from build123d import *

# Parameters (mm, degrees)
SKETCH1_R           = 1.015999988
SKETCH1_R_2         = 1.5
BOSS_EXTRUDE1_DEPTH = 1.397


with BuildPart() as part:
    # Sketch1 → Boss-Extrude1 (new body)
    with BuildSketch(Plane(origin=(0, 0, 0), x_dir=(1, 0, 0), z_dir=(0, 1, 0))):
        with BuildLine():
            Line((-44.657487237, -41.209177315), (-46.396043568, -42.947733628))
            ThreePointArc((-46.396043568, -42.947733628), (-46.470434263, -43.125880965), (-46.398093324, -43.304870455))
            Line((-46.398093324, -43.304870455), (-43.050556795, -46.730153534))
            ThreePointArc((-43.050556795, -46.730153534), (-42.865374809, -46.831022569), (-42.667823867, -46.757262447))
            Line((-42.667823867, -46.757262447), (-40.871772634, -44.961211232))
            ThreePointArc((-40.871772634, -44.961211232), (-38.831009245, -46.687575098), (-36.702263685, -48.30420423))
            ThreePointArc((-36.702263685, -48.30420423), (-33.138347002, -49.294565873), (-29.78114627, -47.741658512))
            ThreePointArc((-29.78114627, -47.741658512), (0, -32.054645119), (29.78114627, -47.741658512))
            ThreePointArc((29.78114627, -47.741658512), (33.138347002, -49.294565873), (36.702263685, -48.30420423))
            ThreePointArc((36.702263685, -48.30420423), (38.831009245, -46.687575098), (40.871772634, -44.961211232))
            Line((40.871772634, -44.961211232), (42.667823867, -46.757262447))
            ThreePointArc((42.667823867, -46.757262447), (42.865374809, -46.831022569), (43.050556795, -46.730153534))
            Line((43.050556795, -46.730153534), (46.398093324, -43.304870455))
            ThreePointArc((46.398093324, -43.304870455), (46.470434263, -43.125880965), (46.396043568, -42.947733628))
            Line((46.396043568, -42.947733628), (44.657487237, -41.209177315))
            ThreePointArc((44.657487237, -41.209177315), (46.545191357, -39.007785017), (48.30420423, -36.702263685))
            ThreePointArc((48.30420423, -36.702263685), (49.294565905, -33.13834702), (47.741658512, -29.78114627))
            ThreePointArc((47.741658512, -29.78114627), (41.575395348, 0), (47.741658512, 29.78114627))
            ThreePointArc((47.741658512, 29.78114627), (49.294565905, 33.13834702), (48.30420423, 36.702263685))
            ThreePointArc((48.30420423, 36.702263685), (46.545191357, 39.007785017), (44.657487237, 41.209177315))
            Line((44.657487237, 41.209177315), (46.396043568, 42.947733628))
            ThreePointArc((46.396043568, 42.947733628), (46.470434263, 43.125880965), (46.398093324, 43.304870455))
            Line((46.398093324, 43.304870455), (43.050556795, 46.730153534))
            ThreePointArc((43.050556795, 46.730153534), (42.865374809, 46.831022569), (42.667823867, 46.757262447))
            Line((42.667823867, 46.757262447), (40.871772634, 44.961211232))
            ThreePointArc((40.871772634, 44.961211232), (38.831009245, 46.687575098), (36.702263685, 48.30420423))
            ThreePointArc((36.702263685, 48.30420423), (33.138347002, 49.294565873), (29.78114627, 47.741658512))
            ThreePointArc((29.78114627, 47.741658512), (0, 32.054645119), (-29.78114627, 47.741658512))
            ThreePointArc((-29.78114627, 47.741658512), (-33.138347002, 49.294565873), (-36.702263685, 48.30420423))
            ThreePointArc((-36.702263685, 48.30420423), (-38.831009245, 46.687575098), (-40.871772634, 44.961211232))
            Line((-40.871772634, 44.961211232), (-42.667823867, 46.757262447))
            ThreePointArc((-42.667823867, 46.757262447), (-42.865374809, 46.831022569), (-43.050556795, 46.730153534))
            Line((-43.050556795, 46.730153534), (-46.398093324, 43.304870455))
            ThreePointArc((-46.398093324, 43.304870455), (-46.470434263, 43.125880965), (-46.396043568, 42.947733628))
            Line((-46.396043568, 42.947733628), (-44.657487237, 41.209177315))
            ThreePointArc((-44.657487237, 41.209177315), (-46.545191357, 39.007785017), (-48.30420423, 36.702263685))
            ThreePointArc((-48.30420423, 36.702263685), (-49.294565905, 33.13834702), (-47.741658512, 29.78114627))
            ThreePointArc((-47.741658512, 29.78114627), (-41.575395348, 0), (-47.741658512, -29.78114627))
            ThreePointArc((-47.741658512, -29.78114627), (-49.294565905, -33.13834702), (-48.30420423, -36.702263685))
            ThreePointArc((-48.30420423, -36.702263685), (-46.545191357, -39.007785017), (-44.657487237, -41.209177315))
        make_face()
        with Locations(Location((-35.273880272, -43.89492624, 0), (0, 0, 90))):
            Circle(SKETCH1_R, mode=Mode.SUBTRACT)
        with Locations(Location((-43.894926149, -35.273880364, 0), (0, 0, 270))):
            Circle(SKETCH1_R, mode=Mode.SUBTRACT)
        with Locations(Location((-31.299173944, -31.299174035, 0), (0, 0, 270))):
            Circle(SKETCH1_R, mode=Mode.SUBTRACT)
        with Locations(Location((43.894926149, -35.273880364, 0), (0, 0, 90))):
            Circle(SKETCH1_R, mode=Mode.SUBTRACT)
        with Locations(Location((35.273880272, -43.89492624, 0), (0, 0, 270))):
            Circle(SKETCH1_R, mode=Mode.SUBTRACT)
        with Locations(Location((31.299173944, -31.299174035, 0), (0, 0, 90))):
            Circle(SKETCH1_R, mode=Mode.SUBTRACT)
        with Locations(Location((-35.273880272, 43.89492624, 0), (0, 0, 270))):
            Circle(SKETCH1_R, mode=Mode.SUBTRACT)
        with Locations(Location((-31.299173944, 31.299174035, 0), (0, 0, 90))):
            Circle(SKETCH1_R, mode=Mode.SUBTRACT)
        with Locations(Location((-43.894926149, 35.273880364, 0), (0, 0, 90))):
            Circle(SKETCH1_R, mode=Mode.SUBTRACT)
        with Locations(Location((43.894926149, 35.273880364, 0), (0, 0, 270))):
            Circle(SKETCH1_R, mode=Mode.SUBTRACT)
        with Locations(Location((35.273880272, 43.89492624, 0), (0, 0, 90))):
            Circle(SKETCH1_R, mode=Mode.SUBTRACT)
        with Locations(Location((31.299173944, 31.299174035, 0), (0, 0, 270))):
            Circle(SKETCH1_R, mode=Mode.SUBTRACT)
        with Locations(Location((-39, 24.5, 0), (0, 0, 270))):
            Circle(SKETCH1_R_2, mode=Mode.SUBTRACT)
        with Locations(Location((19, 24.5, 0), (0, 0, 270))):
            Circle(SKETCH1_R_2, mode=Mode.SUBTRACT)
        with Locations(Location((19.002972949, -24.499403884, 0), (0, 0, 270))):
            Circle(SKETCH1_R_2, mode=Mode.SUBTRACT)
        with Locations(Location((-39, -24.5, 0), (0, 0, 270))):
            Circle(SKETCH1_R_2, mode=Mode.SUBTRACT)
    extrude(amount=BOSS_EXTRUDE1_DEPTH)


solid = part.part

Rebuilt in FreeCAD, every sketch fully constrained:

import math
import FreeCAD as App
import Part
import Sketcher
Q = App.Units.Quantity

doc = App.newDocument("Part")
body = doc.addObject("PartDesign::Body", "Body")

# Sketch on XZ plane
sketch1 = body.newObject("Sketcher::SketchObject", "Sketch")
sketch1.AttachmentSupport = (doc.getObject("XZ_Plane"), [""])
sketch1.MapMode = "FlatFace"
sketch1.addGeometry([
    Part.LineSegment(App.Vector(-44.66, 41.21, 0), App.Vector(-46.4, 42.95, 0)),  # 0
    Part.ArcOfCircle(Part.Circle(App.Vector(-46.22, 43.13, 0), App.Vector(0, 0, 1), 0.25), math.radians(136), math.radians(225)),  # 1
    Part.LineSegment(App.Vector(-46.4, 43.3, 0), App.Vector(-43.05, 46.73, 0)),  # 2
    Part.ArcOfCircle(Part.Circle(App.Vector(-42.85, 46.58, 0), App.Vector(0, 0, 1), 0.25), math.radians(45), math.radians(143)),  # 3
    Part.LineSegment(App.Vector(-42.67, 46.76, 0), App.Vector(-40.87, 44.96, 0)),  # 4
    Part.ArcOfCircle(Part.Circle(App.Vector(-7.05, 7.05, 0), App.Vector(0, 0, 1), 50.8), math.radians(125.71), math.radians(131.74)),  # 5
    Part.ArcOfCircle(Part.Circle(App.Vector(-33.57, 43.95, 0), App.Vector(0, 0, 1), 5.36), math.radians(45), math.radians(126)),  # 6
    Part.ArcOfCircle(Part.Circle(App.Vector(0, 68.17, 0), App.Vector(0, 0, 1), 36.11), math.radians(-146), math.radians(-34)),  # 7
    Part.ArcOfCircle(Part.Circle(App.Vector(33.57, 43.95, 0), App.Vector(0, 0, 1), 5.36), math.radians(54), math.radians(135)),  # 8
    Part.ArcOfCircle(Part.Circle(App.Vector(7.05, 7.05, 0), App.Vector(0, 0, 1), 50.8), math.radians(48.26), math.radians(54.29)),  # 9
    Part.LineSegment(App.Vector(40.87, 44.96, 0), App.Vector(42.67, 46.76, 0)),  # 10
    Part.ArcOfCircle(Part.Circle(App.Vector(42.85, 46.58, 0), App.Vector(0, 0, 1), 0.25), math.radians(37), math.radians(135)),  # 11
    Part.LineSegment(App.Vector(43.05, 46.73, 0), App.Vector(46.4, 43.3, 0)),  # 12
    Part.ArcOfCircle(Part.Circle(App.Vector(46.22, 43.13, 0), App.Vector(0, 0, 1), 0.25), math.radians(-45), math.radians(44)),  # 13
    Part.LineSegment(App.Vector(46.4, 42.95, 0), App.Vector(44.66, 41.21, 0)),  # 14
    Part.ArcOfCircle(Part.Circle(App.Vector(7.05, 7.05, 0), App.Vector(0, 0, 1), 50.8), math.radians(35.71), math.radians(42.25)),  # 15
    Part.ArcOfCircle(Part.Circle(App.Vector(43.95, 33.57, 0), App.Vector(0, 0, 1), 5.36), math.radians(-45), math.radians(36)),  # 16
    Part.ArcOfCircle(Part.Circle(App.Vector(116.58, 0, 0), App.Vector(0, 0, 1), 75), math.radians(157), math.radians(203)),  # 17
    Part.ArcOfCircle(Part.Circle(App.Vector(43.95, -33.57, 0), App.Vector(0, 0, 1), 5.36), math.radians(-36), math.radians(45)),  # 18
    Part.ArcOfCircle(Part.Circle(App.Vector(7.05, -7.05, 0), App.Vector(0, 0, 1), 50.8), math.radians(-42.25), math.radians(-35.71)),  # 19
    Part.LineSegment(App.Vector(44.66, -41.21, 0), App.Vector(46.4, -42.95, 0)),  # 20
    Part.ArcOfCircle(Part.Circle(App.Vector(46.22, -43.13, 0), App.Vector(0, 0, 1), 0.25), math.radians(-44), math.radians(45)),  # 21
    Part.LineSegment(App.Vector(46.4, -43.3, 0), App.Vector(43.05, -46.73, 0)),  # 22
    Part.ArcOfCircle(Part.Circle(App.Vector(42.85, -46.58, 0), App.Vector(0, 0, 1), 0.25), math.radians(-135), math.radians(-37)),  # 23
    Part.LineSegment(App.Vector(42.67, -46.76, 0), App.Vector(40.87, -44.96, 0)),  # 24
    Part.ArcOfCircle(Part.Circle(App.Vector(7.05, -7.05, 0), App.Vector(0, 0, 1), 50.8), math.radians(-54.29), math.radians(-48.26)),  # 25
    Part.ArcOfCircle(Part.Circle(App.Vector(33.57, -43.95, 0), App.Vector(0, 0, 1), 5.36), math.radians(-135), math.radians(-54)),  # 26
    Part.ArcOfCircle(Part.Circle(App.Vector(0, -68.17, 0), App.Vector(0, 0, 1), 36.11), math.radians(34), math.radians(146)),  # 27
    Part.ArcOfCircle(Part.Circle(App.Vector(-33.57, -43.95, 0), App.Vector(0, 0, 1), 5.36), math.radians(-126), math.radians(-45)),  # 28
    Part.ArcOfCircle(Part.Circle(App.Vector(-7.05, -7.05, 0), App.Vector(0, 0, 1), 50.8), math.radians(-131.74), math.radians(-125.71)),  # 29
    Part.LineSegment(App.Vector(-40.87, -44.96, 0), App.Vector(-42.67, -46.76, 0)),  # 30
    Part.ArcOfCircle(Part.Circle(App.Vector(-42.85, -46.58, 0), App.Vector(0, 0, 1), 0.25), math.radians(-143), math.radians(-45)),  # 31
    Part.LineSegment(App.Vector(-43.05, -46.73, 0), App.Vector(-46.4, -43.3, 0)),  # 32
    Part.ArcOfCircle(Part.Circle(App.Vector(-46.22, -43.13, 0), App.Vector(0, 0, 1), 0.25), math.radians(135), math.radians(224)),  # 33
    Part.LineSegment(App.Vector(-46.4, -42.95, 0), App.Vector(-44.66, -41.21, 0)),  # 34
    Part.ArcOfCircle(Part.Circle(App.Vector(-7.05, -7.05, 0), App.Vector(0, 0, 1), 50.8), math.radians(-144.29), math.radians(-137.75)),  # 35
    Part.ArcOfCircle(Part.Circle(App.Vector(-43.95, -33.57, 0), App.Vector(0, 0, 1), 5.36), math.radians(135), math.radians(216)),  # 36
    Part.ArcOfCircle(Part.Circle(App.Vector(-116.58, 0, 0), App.Vector(0, 0, 1), 75), math.radians(-23), math.radians(23)),  # 37
    Part.ArcOfCircle(Part.Circle(App.Vector(-43.95, 33.57, 0), App.Vector(0, 0, 1), 5.36), math.radians(144), math.radians(225)),  # 38
    Part.ArcOfCircle(Part.Circle(App.Vector(-7.05, 7.05, 0), App.Vector(0, 0, 1), 50.8), math.radians(137.75), math.radians(144.29)),  # 39
    Part.Circle(App.Vector(-35.27, 43.89, 0), App.Vector(0, 0, 1), 1.02),  # 40
    Part.Circle(App.Vector(-43.89, 35.27, 0), App.Vector(0, 0, 1), 1.02),  # 41
    Part.Circle(App.Vector(-39, 24.5, 0), App.Vector(0, 0, 1), 1.5),  # 42
    Part.Circle(App.Vector(-31.3, 31.3, 0), App.Vector(0, 0, 1), 1.02),  # 43
    Part.Circle(App.Vector(19, 24.5, 0), App.Vector(0, 0, 1), 1.5),  # 44
    Part.Circle(App.Vector(35.27, 43.89, 0), App.Vector(0, 0, 1), 1.02),  # 45
    Part.Circle(App.Vector(43.89, 35.27, 0), App.Vector(0, 0, 1), 1.02),  # 46
    Part.Circle(App.Vector(31.3, 31.3, 0), App.Vector(0, 0, 1), 1.02),  # 47
    Part.Circle(App.Vector(-39, -24.5, 0), App.Vector(0, 0, 1), 1.5),  # 48
    Part.Circle(App.Vector(-31.3, -31.3, 0), App.Vector(0, 0, 1), 1.02),  # 49
    Part.Circle(App.Vector(-43.89, -35.27, 0), App.Vector(0, 0, 1), 1.02),  # 50
    Part.Circle(App.Vector(-35.27, -43.89, 0), App.Vector(0, 0, 1), 1.02),  # 51
    Part.Circle(App.Vector(19, -24.5, 0), App.Vector(0, 0, 1), 1.5),  # 52
    Part.Circle(App.Vector(31.3, -31.3, 0), App.Vector(0, 0, 1), 1.02),  # 53
    Part.Circle(App.Vector(43.89, -35.27, 0), App.Vector(0, 0, 1), 1.02),  # 54
    Part.Circle(App.Vector(35.27, -43.89, 0), App.Vector(0, 0, 1), 1.02),  # 55
], False)
sketch1.addConstraint([
    Sketcher.Constraint("Tangent", 0, 2, 1, 2),
    Sketcher.Constraint("Tangent", 1, 1, 2, 1),
    Sketcher.Constraint("Coincident", 2, 2, 3, 2),
    Sketcher.Constraint("Tangent", 3, 1, 4, 1),
    Sketcher.Constraint("Coincident", 4, 2, 5, 2),
    Sketcher.Constraint("Tangent", 5, 1, 6, 2),
    Sketcher.Constraint("Coincident", 6, 1, 7, 1),
    Sketcher.Constraint("Coincident", 7, 2, 8, 2),
    Sketcher.Constraint("Tangent", 8, 1, 9, 2),
    Sketcher.Constraint("Coincident", 9, 1, 10, 1),
    Sketcher.Constraint("Tangent", 10, 2, 11, 2),
    Sketcher.Constraint("Coincident", 11, 1, 12, 1),
    Sketcher.Constraint("Tangent", 12, 2, 13, 2),
    Sketcher.Constraint("Tangent", 13, 1, 14, 1),
    Sketcher.Constraint("Coincident", 14, 2, 15, 2),
    Sketcher.Constraint("Tangent", 15, 1, 16, 2),
    Sketcher.Constraint("Coincident", 16, 1, 17, 1),
    Sketcher.Constraint("Coincident", 17, 2, 18, 2),
    Sketcher.Constraint("Tangent", 18, 1, 19, 2),
    Sketcher.Constraint("Coincident", 19, 1, 20, 1),
    Sketcher.Constraint("Tangent", 20, 2, 21, 2),
    Sketcher.Constraint("Tangent", 21, 1, 22, 1),
    Sketcher.Constraint("Coincident", 22, 2, 23, 2),
    Sketcher.Constraint("Tangent", 23, 1, 24, 1),
    Sketcher.Constraint("Coincident", 24, 2, 25, 2),
    Sketcher.Constraint("Tangent", 25, 1, 26, 2),
    Sketcher.Constraint("Coincident", 26, 1, 27, 1),
    Sketcher.Constraint("Coincident", 27, 2, 28, 2),
    Sketcher.Constraint("Tangent", 28, 1, 29, 2),
    Sketcher.Constraint("Coincident", 29, 1, 30, 1),
    Sketcher.Constraint("Tangent", 30, 2, 31, 2),
    Sketcher.Constraint("Coincident", 31, 1, 32, 1),
    Sketcher.Constraint("Tangent", 32, 2, 33, 2),
    Sketcher.Constraint("Tangent", 33, 1, 34, 1),
    Sketcher.Constraint("Coincident", 34, 2, 35, 2),
    Sketcher.Constraint("Tangent", 35, 1, 36, 2),
    Sketcher.Constraint("Coincident", 36, 1, 37, 1),
    Sketcher.Constraint("Coincident", 37, 2, 38, 2),
    Sketcher.Constraint("Tangent", 38, 1, 39, 2),
    Sketcher.Constraint("Coincident", 39, 1, 0, 1),
    Sketcher.Constraint("Coincident", 15, 3, 9, 3),
    Sketcher.Constraint("Coincident", 25, 3, 19, 3),
    Sketcher.Constraint("Coincident", 35, 3, 29, 3),
    Sketcher.Constraint("Coincident", 39, 3, 5, 3),
    Sketcher.Constraint("Equal", 1, 3),
    Sketcher.Constraint("Equal", 6, 8),
    Sketcher.Constraint("Equal", 5, 9),
    Sketcher.Constraint("Equal", 3, 11),
    Sketcher.Constraint("Equal", 11, 13),
    Sketcher.Constraint("Equal", 9, 15),
    Sketcher.Constraint("Equal", 8, 16),
    Sketcher.Constraint("Equal", 16, 18),
    Sketcher.Constraint("Equal", 15, 19),
    Sketcher.Constraint("Equal", 13, 21),
    Sketcher.Constraint("Equal", 21, 23),
    Sketcher.Constraint("Equal", 19, 25),
    Sketcher.Constraint("Equal", 18, 26),
    Sketcher.Constraint("Equal", 7, 27),
    Sketcher.Constraint("Equal", 26, 28),
    Sketcher.Constraint("Equal", 25, 29),
    Sketcher.Constraint("Equal", 23, 31),
    Sketcher.Constraint("Equal", 31, 33),
    Sketcher.Constraint("Equal", 29, 35),
    Sketcher.Constraint("Equal", 28, 36),
    Sketcher.Constraint("Equal", 17, 37),
    Sketcher.Constraint("Equal", 36, 38),
    Sketcher.Constraint("Equal", 35, 39),
    Sketcher.Constraint("Equal", 40, 41),
    Sketcher.Constraint("Equal", 41, 43),
    Sketcher.Constraint("Equal", 42, 44),
    Sketcher.Constraint("Equal", 43, 45),
    Sketcher.Constraint("Equal", 45, 46),
    Sketcher.Constraint("Equal", 46, 47),
    Sketcher.Constraint("Equal", 44, 48),
    Sketcher.Constraint("Equal", 47, 49),
    Sketcher.Constraint("Equal", 49, 50),
    Sketcher.Constraint("Equal", 50, 51),
    Sketcher.Constraint("Equal", 48, 52),
    Sketcher.Constraint("Equal", 51, 53),
    Sketcher.Constraint("Equal", 53, 54),
    Sketcher.Constraint("Equal", 54, 55),
    Sketcher.Constraint("Symmetric", 5, 3, 19, 3, -1, 1),
    Sketcher.Constraint("Symmetric", 1, 3, 21, 3, -1, 1),
    Sketcher.Constraint("Symmetric", 3, 3, 23, 3, -1, 1),
    Sketcher.Constraint("Symmetric", 7, 3, 27, 3, -1, 1),
    Sketcher.Constraint("Symmetric", 8, 3, 28, 3, -1, 1),
    Sketcher.Constraint("Symmetric", 11, 3, 31, 3, -1, 1),
    Sketcher.Constraint("Symmetric", 13, 3, 33, 3, -1, 1),
    Sketcher.Constraint("Symmetric", 16, 3, 36, 3, -1, 1),
    Sketcher.Constraint("Symmetric", 17, 3, 37, 3, -1, 1),
    Sketcher.Constraint("Symmetric", 47, 3, 49, 3, -1, 1),
    Sketcher.Constraint("Symmetric", 46, 3, 50, 3, -1, 1),
    Sketcher.Constraint("Symmetric", 45, 3, 51, 3, -1, 1),
    Sketcher.Constraint("Symmetric", 43, 3, 53, 3, -1, 1),
    Sketcher.Constraint("Symmetric", 41, 3, 54, 3, -1, 1),
    Sketcher.Constraint("Symmetric", 40, 3, 55, 3, -1, 1),
    Sketcher.Constraint("Symmetric", 6, 3, 8, 3, -2),
    Sketcher.Constraint("Symmetric", 3, 3, 11, 3, -2),
    Sketcher.Constraint("Symmetric", 1, 3, 13, 3, -2),
    Sketcher.Constraint("Symmetric", 18, 3, 36, 3, -2),
    Sketcher.Constraint("Symmetric", 40, 3, 45, 3, -2),
    Sketcher.Constraint("Symmetric", 41, 3, 46, 3, -2),
    Sketcher.Constraint("Symmetric", 43, 3, 47, 3, -2),
    Sketcher.Constraint("Symmetric", 26, 1, 27, 2, -2),
    Sketcher.Constraint("Symmetric", 16, 1, 37, 2, -2),
    Sketcher.Constraint("Symmetric", 42, 3, 48, 3, -1),
    Sketcher.Constraint("Parallel", 0, 4),
    Sketcher.Constraint("Perpendicular", 4, 10),
    Sketcher.Constraint("Parallel", 10, 14),
    Sketcher.Constraint("Perpendicular", 14, 20),
    Sketcher.Constraint("Parallel", 2, 22),
    Sketcher.Constraint("Parallel", 20, 24),
    Sketcher.Constraint("Perpendicular", 24, 30),
    Sketcher.Constraint("Parallel", 12, 32),
    Sketcher.Constraint("Parallel", 30, 34),
    Sketcher.Constraint("Horizontal", 48, 3, 52, 3),
    Sketcher.Constraint("Horizontal", 4, 2, 9, 1),
    Sketcher.Constraint("Horizontal", 2, 2, 11, 1),
    Sketcher.Constraint("Radius", 5, Q("2 in")),
    Sketcher.Constraint("Diameter", 40, Q("0.08 in")),
    Sketcher.Constraint("Radius", 1, Q("0.01 in")),
    Sketcher.Constraint("Distance", 4, Q("0.1 in")),
    Sketcher.Constraint("Diameter", 42, 3.0),
    Sketcher.Constraint("Radius", 17, 75.0),
    Sketcher.Constraint("Radius", 6, 5.362133),
    Sketcher.Constraint("Radius", 7, 36.112644),
    Sketcher.Constraint("DistanceX", 42, 3, -1, 1, 39.0),
    Sketcher.Constraint("DistanceY", -1, 1, 42, 3, 24.5),
    Sketcher.Constraint("DistanceX", -1, 1, 52, 3, 19.0),
    Sketcher.Constraint("Distance", 0, 2.45869),
    Sketcher.Constraint("DistanceX", 1, 3, -1, 1, 46.216438),
    Sketcher.Constraint("DistanceY", -1, 1, 1, 3, 43.127339),
    Sketcher.Constraint("DistanceX", 3, 3, -1, 1, 42.847429),
    Sketcher.Constraint("DistanceX", 5, 3, -1, 1, 7.05371),
    Sketcher.Constraint("DistanceY", -1, 1, 6, 3, 43.950058),
    Sketcher.Constraint("DistanceY", -1, 1, 7, 3, 68.167289),
    Sketcher.Constraint("DistanceX", -1, 1, 16, 3, 43.950058),
    Sketcher.Constraint("DistanceX", 40, 3, -1, 1, 35.27388),
    Sketcher.Constraint("DistanceY", -1, 1, 41, 3, 35.27388),
    Sketcher.Constraint("DistanceX", -1, 1, 16, 1, 47.741659),
    Sketcher.Constraint("Distance", 2, 4.789422),
    Sketcher.Constraint("DistanceY", -1, 1, 40, 3, 43.894926),
    Sketcher.Constraint("DistanceX", 41, 3, -1, 1, 43.894926),
    Sketcher.Constraint("DistanceX", 43, 3, -1, 1, 31.299174),
    Sketcher.Constraint("DistanceY", -1, 1, 43, 3, 31.299174),
    Sketcher.Constraint("DistanceX", -1, 1, 44, 3, 19.002973),
    Sketcher.Constraint("DistanceY", -1, 1, 44, 3, 24.499404),
])
pad1 = body.newObject("PartDesign::Pad", "Pad")
pad1.Profile = sketch1
pad1.Length = Q("0.055 in")
pad1.Reversed = True

doc.recompute()
